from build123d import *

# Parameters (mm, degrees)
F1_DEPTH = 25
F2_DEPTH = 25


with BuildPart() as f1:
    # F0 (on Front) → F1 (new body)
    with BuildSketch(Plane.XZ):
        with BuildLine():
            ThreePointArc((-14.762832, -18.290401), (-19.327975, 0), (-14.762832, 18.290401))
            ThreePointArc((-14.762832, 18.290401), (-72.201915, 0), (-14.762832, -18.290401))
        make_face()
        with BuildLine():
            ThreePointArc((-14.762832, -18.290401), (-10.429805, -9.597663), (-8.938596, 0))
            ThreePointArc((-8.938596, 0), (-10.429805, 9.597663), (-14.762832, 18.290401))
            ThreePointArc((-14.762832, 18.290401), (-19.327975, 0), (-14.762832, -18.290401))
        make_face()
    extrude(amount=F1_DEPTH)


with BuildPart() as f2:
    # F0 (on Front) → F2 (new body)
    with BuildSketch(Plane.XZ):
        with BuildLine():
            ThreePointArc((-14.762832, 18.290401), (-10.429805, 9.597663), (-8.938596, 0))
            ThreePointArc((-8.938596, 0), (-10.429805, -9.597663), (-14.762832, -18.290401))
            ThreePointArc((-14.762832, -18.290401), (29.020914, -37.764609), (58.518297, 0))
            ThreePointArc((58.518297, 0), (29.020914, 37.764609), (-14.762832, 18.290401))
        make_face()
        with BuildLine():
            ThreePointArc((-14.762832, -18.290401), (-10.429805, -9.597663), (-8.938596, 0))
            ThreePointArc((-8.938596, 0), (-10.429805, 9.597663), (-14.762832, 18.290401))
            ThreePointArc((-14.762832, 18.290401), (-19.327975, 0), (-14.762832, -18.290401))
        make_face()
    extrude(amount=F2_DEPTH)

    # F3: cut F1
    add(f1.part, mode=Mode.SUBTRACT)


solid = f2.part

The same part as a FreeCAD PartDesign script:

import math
import FreeCAD as App
import Part
import Sketcher

V = App.Vector
Q = App.Units.Quantity

doc = App.newDocument("Part")
body = doc.addObject("PartDesign::Body", "Body")

# Sketch on XZ plane
sketch1 = doc.addObject("Sketcher::SketchObject", "Sketch")
body.addObject(sketch1)
sketch1.AttachmentSupport = (doc.XZ_Plane, [""])
sketch1.MapMode = "FlatFace"
sketch1.addGeometry([
    Part.ArcOfCircle(Part.Circle(V(-40.570256, 0, 0), V(0, 0, 1), 31.631659), math.radians(35.326205), math.radians(324.673795)),
    Part.ArcOfCircle(Part.Circle(V(-40.570252, -0.000001, 0), V(0, 0, 1), 31.631656), math.radians(-35.326208), math.radians(0.000002)),
    Part.ArcOfCircle(Part.Circle(V(-40.570252, 0.000001, 0), V(0, 0, 1), 31.631656), math.radians(-0.000002), math.radians(35.326208)),
], False)
sketch1.addConstraint([
    Sketcher.Constraint("Tangent", 0, 2, 1, 1),
    Sketcher.Constraint("Tangent", 1, 2, 2, 1),
    Sketcher.Constraint("Tangent", 2, 2, 0, 1),
    Sketcher.Constraint("Symmetric", 0, 2, 2, 2, -1),
    Sketcher.Constraint("PointOnObject", 1, 2, -1),
    Sketcher.Constraint("Radius", 0, Q("31.631659 mm")),
    Sketcher.Constraint("DistanceY", 0, 2, -1, 1, Q("18.290401 mm")),
    Sketcher.Constraint("DistanceX", 1, 3, -1, 1, Q("40.570252 mm")),
])
pad1 = doc.addObject("PartDesign::Pad", "Pad")
body.addObject(pad1)
pad1.Profile = sketch1
pad1.Length = 25
body2 = doc.addObject("PartDesign::Body", "Body001")

# Sketch on XZ plane
sketch2 = doc.addObject("Sketcher::SketchObject", "Sketch001")
body2.addObject(sketch2)
sketch2.AttachmentSupport = (doc.getObject("XZ_Plane001"), [""])
sketch2.MapMode = "FlatFace"
sketch2.addGeometry([
    Part.ArcOfCircle(Part.Circle(V(19.595162, 0, 0), V(0, 0, 1), 38.923135), math.radians(-151.971495), math.radians(0.000001)),
    Part.ArcOfCircle(Part.Circle(V(19.595162, 0, 0), V(0, 0, 1), 38.923135), math.radians(-0.000001), math.radians(151.971495)),
    Part.ArcOfCircle(Part.Circle(V(19.595154, 0, 0), V(0, 0, 1), 38.923129), math.radians(151.97149), math.radians(208.02851)),
], False)
sketch2.addConstraint([
    Sketcher.Constraint("Tangent", 0, 2, 1, 1),
    Sketcher.Constraint("Tangent", 1, 2, 2, 1),
    Sketcher.Constraint("Tangent", 2, 2, 0, 1),
    Sketcher.Constraint("Symmetric", 1, 2, 2, 2, -1),
    Sketcher.Constraint("PointOnObject", 0, 2, -1),
    Sketcher.Constraint("Radius", 2, Q("38.923129 mm")),
    Sketcher.Constraint("DistanceY", -1, 1, 1, 2, Q("18.290401 mm")),
    Sketcher.Constraint("DistanceX", -1, 1, 0, 3, Q("19.595162 mm")),
])
pad2 = doc.addObject("PartDesign::Pad", "Pad001")
body2.addObject(pad2)
pad2.Profile = sketch2
pad2.Length = 25
doc.recompute()

boolean = doc.addObject("PartDesign::Boolean", "Boolean")
body2.addObject(boolean)
boolean.Type = "Cut"
boolean.addObjects([body])

doc.recompute()
